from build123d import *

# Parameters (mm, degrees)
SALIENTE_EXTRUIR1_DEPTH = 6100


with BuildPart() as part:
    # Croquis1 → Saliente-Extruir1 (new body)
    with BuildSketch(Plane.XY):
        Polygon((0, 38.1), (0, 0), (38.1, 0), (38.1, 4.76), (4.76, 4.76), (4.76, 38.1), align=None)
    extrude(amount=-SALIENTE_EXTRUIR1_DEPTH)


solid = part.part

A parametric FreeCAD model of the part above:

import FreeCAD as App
import Part
import Sketcher

doc = App.newDocument("Part")
body = doc.addObject("PartDesign::Body", "Body")

sketch1 = doc.addObject("Sketcher::SketchObject", "Sketch")
body.addObject(sketch1)
sketch1.AttachmentSupport = (doc.XY_Plane, [""])
sketch1.MapMode = "FlatFace"
sketch1.addGeometry(Part.LineSegment(App.Vector(0, 38.1, 0), App.Vector(0, 0, 0)), False)
sketch1.addGeometry(Part.LineSegment(App.Vector(0, 0, 0), App.Vector(38.1, 0, 0)), False)
sketch1.addGeometry(Part.LineSegment(App.Vector(38.1, 0, 0), App.Vector(38.1, 4.8, 0)), False)
sketch1.addGeometry(Part.LineSegment(App.Vector(38.1, 4.8, 0), App.Vector(4.8, 4.8, 0)), False)
sketch1.addGeometry(Part.LineSegment(App.Vector(4.8, 4.8, 0), App.Vector(4.8, 38.1, 0)), False)
sketch1.addGeometry(Part.LineSegment(App.Vector(4.8, 38.1, 0), App.Vector(0, 38.1, 0)), False)
sketch1.addConstraint(Sketcher.Constraint("Coincident", 0, 2, 1, 1))
sketch1.addConstraint(Sketcher.Constraint("Coincident", 1, 2, 2, 1))
sketch1.addConstraint(Sketcher.Constraint("Coincident", 2, 2, 3, 1))
sketch1.addConstraint(Sketcher.Constraint("Coincident", 3, 2, 4, 1))
sketch1.addConstraint(Sketcher.Constraint("Coincident", 4, 2, 5, 1))
sketch1.addConstraint(Sketcher.Constraint("Coincident", 5, 2, 0, 1))
sketch1.addConstraint(Sketcher.Constraint("Vertical", 0))
sketch1.addConstraint(Sketcher.Constraint("Horizontal", 1))
sketch1.addConstraint(Sketcher.Constraint("Vertical", 2))
sketch1.addConstraint(Sketcher.Constraint("Horizontal", 3))
sketch1.addConstraint(Sketcher.Constraint("Vertical", 4))
sketch1.addConstraint(Sketcher.Constraint("Horizontal", 5))
sketch1.addConstraint(Sketcher.Constraint("Coincident", 0, 2, -1, 1))
sketch1.addConstraint(Sketcher.Constraint("Equal", 1, 0))
sketch1.addConstraint(Sketcher.Constraint("Equal", 5, 2))
sketch1.addConstraint(Sketcher.Constraint("DistanceX", 1, 1, 1, 2, 38.1))
sketch1.addConstraint(Sketcher.Constraint("DistanceX", 3, 2, 3, 1, 33.34))
pad1 = doc.addObject("PartDesign::Pad", "Pad")
body.addObject(pad1)
pad1.Profile = sketch1
pad1.Length = 6100
pad1.Reversed = True

doc.recompute()
